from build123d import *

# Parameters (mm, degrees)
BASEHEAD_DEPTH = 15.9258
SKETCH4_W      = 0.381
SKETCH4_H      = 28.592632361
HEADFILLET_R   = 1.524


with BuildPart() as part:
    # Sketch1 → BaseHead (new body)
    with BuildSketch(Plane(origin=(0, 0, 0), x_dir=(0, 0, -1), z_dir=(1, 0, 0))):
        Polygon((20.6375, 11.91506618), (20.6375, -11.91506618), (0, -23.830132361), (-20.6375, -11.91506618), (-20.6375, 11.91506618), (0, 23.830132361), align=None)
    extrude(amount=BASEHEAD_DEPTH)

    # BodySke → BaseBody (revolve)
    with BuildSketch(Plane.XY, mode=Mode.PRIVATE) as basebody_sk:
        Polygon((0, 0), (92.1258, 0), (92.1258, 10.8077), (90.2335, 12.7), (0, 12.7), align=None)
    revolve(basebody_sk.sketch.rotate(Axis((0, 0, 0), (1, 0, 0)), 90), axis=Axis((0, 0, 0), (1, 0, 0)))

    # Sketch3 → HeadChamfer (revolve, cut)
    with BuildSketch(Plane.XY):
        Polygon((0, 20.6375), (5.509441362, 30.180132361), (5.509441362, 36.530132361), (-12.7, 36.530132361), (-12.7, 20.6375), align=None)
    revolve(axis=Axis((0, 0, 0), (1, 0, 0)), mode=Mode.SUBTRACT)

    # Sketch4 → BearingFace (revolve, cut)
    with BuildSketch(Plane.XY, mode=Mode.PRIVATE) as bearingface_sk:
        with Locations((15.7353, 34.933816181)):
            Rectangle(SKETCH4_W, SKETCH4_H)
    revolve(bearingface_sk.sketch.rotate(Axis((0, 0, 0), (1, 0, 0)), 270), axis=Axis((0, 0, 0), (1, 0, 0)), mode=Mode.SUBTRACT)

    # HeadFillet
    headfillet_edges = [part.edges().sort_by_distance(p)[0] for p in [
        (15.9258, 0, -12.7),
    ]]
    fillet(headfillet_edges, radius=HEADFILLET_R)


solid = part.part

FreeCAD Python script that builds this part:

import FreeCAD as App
import Part
import Sketcher
Q = App.Units.Quantity


def edges_at(feature, points):
    """Names of the edges that pass closest to the given points."""
    edges = feature.Shape.Edges
    near = lambda p: min(range(len(edges)), key=lambda i: edges[i].distToShape(Part.Vertex(*p))[0])
    return sorted({f"Edge{near(p) + 1}" for p in points})


def add_polygon(sketch, points):
    """Adds a closed chain of lines whose ends are joined by coincident constraints."""
    first, n = sketch.GeometryCount, len(points)
    for a, b in zip(points, points[1:] + points[:1]):
        sketch.addGeometry(Part.LineSegment(App.Vector(*a, 0), App.Vector(*b, 0)), False)
    for i in range(n):
        sketch.addConstraint(Sketcher.Constraint("Coincident", first + i, 2, first + (i + 1) % n, 1))

doc = App.newDocument("Part")
body = doc.addObject("PartDesign::Body", "Body")

sketch1 = body.newObject("Sketcher::SketchObject", "Sketch")
sketch1.AttachmentSupport = (doc.getObject("YZ_Plane"), [""])
sketch1.MapMode = "FlatFace"
add_polygon(sketch1, [(-11.915066, -20.6375), (11.915066, -20.6375), (23.830132, 0), (11.915066, 20.6375), (-11.915066, 20.6375), (-23.830132, 0)])
sketch1.addConstraint(Sketcher.Constraint("Horizontal", 0))
sketch1.addConstraint(Sketcher.Constraint("Horizontal", 3))
sketch1.addConstraint(Sketcher.Constraint("Symmetric", 0, 2, 3, 2, -1, 1))
sketch1.addConstraint(Sketcher.Constraint("Symmetric", 1, 2, 4, 2, -1, 1))
sketch1.addConstraint(Sketcher.Constraint("PointOnObject", 1, 2, -1))
sketch1.addConstraint(Sketcher.Constraint("Parallel", 2, 5))
sketch1.addConstraint(Sketcher.Constraint("Vertical", 0, 2, 2, 2))
sketch1.addConstraint(Sketcher.Constraint("Angle", 1, Q("60 deg")))
sketch1.addConstraint(Sketcher.Constraint("DistanceY", 0, 2, -1, 1, Q("0.8125 in")))
sketch1.addConstraint(Sketcher.Constraint("DistanceX", 3, 2, 1, 2, Q("35.745199 mm")))
pad1 = body.newObject("PartDesign::Pad", "Pad")
pad1.Profile = sketch1
pad1.Length = Q("0.627 in")

sketch2 = body.newObject("Sketcher::SketchObject", "Sketch001")
sketch2.AttachmentSupport = (doc.getObject("XY_Plane"), [""])
sketch2.MapMode = "FlatFace"
add_polygon(sketch2, [(0, 0), (92.1258, 0), (92.1258, 10.8077), (90.2335, 12.7), (0, 12.7)])
sketch2.addConstraint(Sketcher.Constraint("Horizontal", 0))
sketch2.addConstraint(Sketcher.Constraint("Vertical", 1))
sketch2.addConstraint(Sketcher.Constraint("Horizontal", 3))
sketch2.addConstraint(Sketcher.Constraint("Vertical", 4))
sketch2.addConstraint(Sketcher.Constraint("Coincident", 4, 2, -1, 1))
sketch2.addConstraint(Sketcher.Constraint("DistanceY", 4, 2, 4, 1, Q("0.5 in")))
sketch2.addConstraint(Sketcher.Constraint("Angle", 2, Q("135 deg")))
sketch2.addConstraint(Sketcher.Constraint("DistanceX", 0, 1, 0, 2, Q("3.627 in")))
sketch2.addConstraint(Sketcher.Constraint("DistanceX", 3, 2, 3, 1, Q("3.5525 in")))
revolution = body.newObject("PartDesign::Revolution", "Revolution")
revolution.Profile = sketch2
revolution.ReferenceAxis = (sketch2, ["H_Axis"])
revolution.Angle = 360

sketch3 = body.newObject("Sketcher::SketchObject", "Sketch002")
sketch3.AttachmentSupport = (doc.getObject("XY_Plane"), [""])
sketch3.MapMode = "FlatFace"
add_polygon(sketch3, [(0, 20.6375), (5.509441, 30.180132), (5.509441, 36.530132), (-12.7, 36.530132), (-12.7, 20.6375)])
sketch3.addConstraint(Sketcher.Constraint("Vertical", 1))
sketch3.addConstraint(Sketcher.Constraint("Horizontal", 2))
sketch3.addConstraint(Sketcher.Constraint("Vertical", 3))
sketch3.addConstraint(Sketcher.Constraint("Horizontal", 4))
sketch3.addConstraint(Sketcher.Constraint("PointOnObject", 4, 2, -2))
sketch3.addConstraint(Sketcher.Constraint("DistanceX", 4, 1, 4, 2, Q("0.5 in")))
sketch3.addConstraint(Sketcher.Constraint("Angle", 0, Q("60 deg")))
sketch3.addConstraint(Sketcher.Constraint("DistanceY", 1, 1, 1, 2, Q("0.25 in")))
sketch3.addConstraint(Sketcher.Constraint("DistanceY", -1, 1, 3, 2, Q("0.8125 in")))
sketch3.addConstraint(Sketcher.Constraint("DistanceX", 2, 2, 2, 1, Q("18.209441 mm")))
groove = body.newObject("PartDesign::Groove", "Groove")
groove.Profile = sketch3
groove.ReferenceAxis = (sketch3, ["H_Axis"])
groove.Angle = 360

sketch4 = body.newObject("Sketcher::SketchObject", "Sketch003")
sketch4.AttachmentSupport = (doc.getObject("XY_Plane"), [""])
sketch4.MapMode = "FlatFace"
add_polygon(sketch4, [(15.5448, 49.230132), (15.5448, 20.6375), (15.9258, 20.6375), (15.9258, 49.230132)])
sketch4.addConstraint(Sketcher.Constraint("Vertical", 0))
sketch4.addConstraint(Sketcher.Constraint("Horizontal", 1))
sketch4.addConstraint(Sketcher.Constraint("Vertical", 2))
sketch4.addConstraint(Sketcher.Constraint("Horizontal", 3))
sketch4.addConstraint(Sketcher.Constraint("DistanceX", 1, 1, 1, 2, Q("0.015 in")))
sketch4.addConstraint(Sketcher.Constraint("DistanceX", -1, 1, 0, 2, Q("0.612 in")))
sketch4.addConstraint(Sketcher.Constraint("DistanceY", -1, 1, 0, 2, Q("0.8125 in")))
sketch4.addConstraint(Sketcher.Constraint("DistanceY", 0, 2, 0, 1, Q("28.592632 mm")))
groove2 = body.newObject("PartDesign::Groove", "Groove001")
groove2.Profile = sketch4
groove2.ReferenceAxis = (sketch4, ["H_Axis"])
groove2.Angle = 360
doc.recompute()

fillet = body.newObject("PartDesign::Fillet", "Fillet")
fillet.Base = (groove2, edges_at(groove2, [(15.926, 0, -12.7)]))
fillet.Radius = Q("0.06 in")

doc.recompute()
